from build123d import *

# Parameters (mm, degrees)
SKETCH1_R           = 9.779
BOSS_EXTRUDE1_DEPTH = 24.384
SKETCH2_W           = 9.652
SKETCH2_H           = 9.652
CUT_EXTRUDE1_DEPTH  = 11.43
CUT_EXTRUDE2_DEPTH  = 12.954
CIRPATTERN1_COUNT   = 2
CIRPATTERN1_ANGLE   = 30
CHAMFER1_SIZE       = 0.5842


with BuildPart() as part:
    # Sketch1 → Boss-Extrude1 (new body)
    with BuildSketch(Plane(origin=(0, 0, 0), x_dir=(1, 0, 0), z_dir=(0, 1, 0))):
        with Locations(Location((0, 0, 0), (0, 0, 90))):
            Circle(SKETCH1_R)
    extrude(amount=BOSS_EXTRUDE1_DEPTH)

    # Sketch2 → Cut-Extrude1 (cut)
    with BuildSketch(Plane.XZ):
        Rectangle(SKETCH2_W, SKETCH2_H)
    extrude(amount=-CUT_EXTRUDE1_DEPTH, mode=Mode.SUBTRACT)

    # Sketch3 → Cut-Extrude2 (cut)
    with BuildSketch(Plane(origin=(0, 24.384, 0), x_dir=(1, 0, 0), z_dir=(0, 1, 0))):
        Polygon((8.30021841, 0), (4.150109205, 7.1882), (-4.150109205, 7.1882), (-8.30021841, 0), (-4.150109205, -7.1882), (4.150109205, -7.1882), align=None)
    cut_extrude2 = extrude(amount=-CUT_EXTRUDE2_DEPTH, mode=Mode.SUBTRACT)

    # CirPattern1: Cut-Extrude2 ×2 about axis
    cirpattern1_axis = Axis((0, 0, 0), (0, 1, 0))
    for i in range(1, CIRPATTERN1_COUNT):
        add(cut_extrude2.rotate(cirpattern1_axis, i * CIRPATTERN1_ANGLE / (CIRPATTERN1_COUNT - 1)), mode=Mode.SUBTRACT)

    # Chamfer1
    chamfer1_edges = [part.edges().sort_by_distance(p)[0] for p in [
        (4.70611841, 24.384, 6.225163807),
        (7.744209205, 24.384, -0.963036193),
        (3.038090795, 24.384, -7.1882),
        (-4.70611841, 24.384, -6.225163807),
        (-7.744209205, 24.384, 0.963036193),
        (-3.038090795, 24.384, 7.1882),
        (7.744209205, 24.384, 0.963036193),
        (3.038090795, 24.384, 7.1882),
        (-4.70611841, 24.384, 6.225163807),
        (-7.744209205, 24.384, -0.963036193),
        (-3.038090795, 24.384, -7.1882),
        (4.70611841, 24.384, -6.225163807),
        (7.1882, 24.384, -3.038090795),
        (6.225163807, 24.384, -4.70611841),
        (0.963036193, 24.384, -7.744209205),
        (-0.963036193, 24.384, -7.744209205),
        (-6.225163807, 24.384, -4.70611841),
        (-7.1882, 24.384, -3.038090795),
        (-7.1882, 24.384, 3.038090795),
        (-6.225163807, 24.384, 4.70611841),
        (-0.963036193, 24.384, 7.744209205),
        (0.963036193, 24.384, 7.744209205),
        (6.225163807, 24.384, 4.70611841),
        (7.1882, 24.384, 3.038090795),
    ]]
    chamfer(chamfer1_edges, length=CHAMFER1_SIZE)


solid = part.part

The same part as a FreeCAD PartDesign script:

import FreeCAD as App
import Part
import Sketcher
Q = App.Units.Quantity


def edges_at(feature, points):
    """Names of the edges that pass closest to the given points."""
    edges = feature.Shape.Edges
    near = lambda p: min(range(len(edges)), key=lambda i: edges[i].distToShape(Part.Vertex(*p))[0])
    return sorted({f"Edge{near(p) + 1}" for p in points})

doc = App.newDocument("Part")
body = doc.addObject("PartDesign::Body", "Body")

# Sketch on XZ plane
sketch1 = body.newObject("Sketcher::SketchObject", "Sketch")
sketch1.AttachmentSupport = (doc.getObject("XZ_Plane"), [""])
sketch1.MapMode = "FlatFace"
sketch1.addGeometry(Part.Circle(App.Vector(0, 0, 0), App.Vector(0, 0, 1), 10), False)
sketch1.addConstraint(Sketcher.Constraint("Coincident", 0, 3, -1, 1))
sketch1.addConstraint(Sketcher.Constraint("Diameter", 0, Q("0.77 in")))
pad1 = body.newObject("PartDesign::Pad", "Pad")
pad1.Profile = sketch1
pad1.Length = Q("0.96 in")
pad1.Reversed = True

# Sketch on XZ plane
sketch2 = body.newObject("Sketcher::SketchObject", "Sketch001")
sketch2.AttachmentSupport = (doc.getObject("XZ_Plane"), [""])
sketch2.MapMode = "FlatFace"
sketch2.addGeometry(Part.LineSegment(App.Vector(-5, 5, 0), App.Vector(-5, -5, 0)), False)
sketch2.addGeometry(Part.LineSegment(App.Vector(-5, -5, 0), App.Vector(5, -5, 0)), False)
sketch2.addGeometry(Part.LineSegment(App.Vector(5, -5, 0), App.Vector(5, 5, 0)), False)
sketch2.addGeometry(Part.LineSegment(App.Vector(5, 5, 0), App.Vector(-5, 5, 0)), False)
sketch2.addConstraint(Sketcher.Constraint("Coincident", 0, 2, 1, 1))
sketch2.addConstraint(Sketcher.Constraint("Coincident", 1, 2, 2, 1))
sketch2.addConstraint(Sketcher.Constraint("Coincident", 2, 2, 3, 1))
sketch2.addConstraint(Sketcher.Constraint("Coincident", 3, 2, 0, 1))
sketch2.addConstraint(Sketcher.Constraint("Vertical", 0))
sketch2.addConstraint(Sketcher.Constraint("Horizontal", 1))
sketch2.addConstraint(Sketcher.Constraint("Vertical", 2))
sketch2.addConstraint(Sketcher.Constraint("Horizontal", 3))
sketch2.addConstraint(Sketcher.Constraint("Symmetric", 0, 2, 2, 2, -1, 1))
sketch2.addConstraint(Sketcher.Constraint("Equal", 3, 0))
sketch2.addConstraint(Sketcher.Constraint("DistanceX", 1, 1, 1, 2, Q("0.38 in")))
pocket1 = body.newObject("PartDesign::Pocket", "Pocket")
pocket1.Profile = sketch2
pocket1.Length = Q("0.45 in")

# Sketch on XZ plane
sketch3 = body.newObject("Sketcher::SketchObject", "Sketch002")
sketch3.AttachmentSupport = (doc.getObject("XZ_Plane"), [""])
sketch3.MapMode = "FlatFace"
sketch3.AttachmentOffset = App.Placement(App.Vector(0, 0, -0.96 * 25.4), App.Rotation())
sketch3.addGeometry(Part.LineSegment(App.Vector(8, 0, 0), App.Vector(4, -7, 0)), False)
sketch3.addGeometry(Part.LineSegment(App.Vector(4, -7, 0), App.Vector(-4, -7, 0)), False)
sketch3.addGeometry(Part.LineSegment(App.Vector(-4, -7, 0), App.Vector(-8, 0, 0)), False)
sketch3.addGeometry(Part.LineSegment(App.Vector(-8, 0, 0), App.Vector(-4, 7, 0)), False)
sketch3.addGeometry(Part.LineSegment(App.Vector(-4, 7, 0), App.Vector(4, 7, 0)), False)
sketch3.addGeometry(Part.LineSegment(App.Vector(4, 7, 0), App.Vector(8, 0, 0)), False)
sketch3.addConstraint(Sketcher.Constraint("Coincident", 0, 2, 1, 1))
sketch3.addConstraint(Sketcher.Constraint("Coincident", 1, 2, 2, 1))
sketch3.addConstraint(Sketcher.Constraint("Coincident", 2, 2, 3, 1))
sketch3.addConstraint(Sketcher.Constraint("Coincident", 3, 2, 4, 1))
sketch3.addConstraint(Sketcher.Constraint("Coincident", 4, 2, 5, 1))
sketch3.addConstraint(Sketcher.Constraint("Coincident", 5, 2, 0, 1))
sketch3.addConstraint(Sketcher.Constraint("Horizontal", 1))
sketch3.addConstraint(Sketcher.Constraint("Horizontal", 4))
sketch3.addConstraint(Sketcher.Constraint("Symmetric", 0, 2, 3, 2, -1, 1))
sketch3.addConstraint(Sketcher.Constraint("Symmetric", 2, 2, 5, 2, -1, 1))
sketch3.addConstraint(Sketcher.Constraint("PointOnObject", 2, 2, -1))
sketch3.addConstraint(Sketcher.Constraint("Parallel", 2, 5))
sketch3.addConstraint(Sketcher.Constraint("Vertical", 1, 2, 3, 2))
sketch3.addConstraint(Sketcher.Constraint("Angle", 0, Q("-120 deg")))
sketch3.addConstraint(Sketcher.Constraint("DistanceY", 0, 2, -1, 1, Q("0.283 in")))
sketch3.addConstraint(Sketcher.Constraint("DistanceX", 1, 2, 1, 1, Q("8.300218 mm")))
pocket2 = body.newObject("PartDesign::Pocket", "Pocket001")
pocket2.Profile = sketch3
pocket2.Length = Q("0.51 in")
pocket2.Reversed = True
doc.recompute()

polarpattern = body.newObject("PartDesign::PolarPattern", "PolarPattern")
polarpattern.Originals = [pocket2]
polarpattern.Axis = (doc.getObject("Y_Axis"), [""])
polarpattern.Angle = 30
polarpattern.Occurrences = 2
body.Tip = polarpattern
doc.recompute()

chamfer = body.newObject("PartDesign::Chamfer", "Chamfer")
chamfer.Base = (polarpattern, edges_at(polarpattern, [
    (4.706, 24.384, 6.225),
    (7.744, 24.384, -0.963),
    (3.038, 24.384, -7.188),
    (-4.706, 24.384, -6.225),
    (-7.744, 24.384, 0.963),
    (-3.038, 24.384, 7.188),
    (7.744, 24.384, 0.963),
    (3.038, 24.384, 7.188),
    (-4.706, 24.384, 6.225),
    (-7.744, 24.384, -0.963),
    (-3.038, 24.384, -7.188),
    (4.706, 24.384, -6.225),
    (7.188, 24.384, -3.038),
    (6.225, 24.384, -4.706),
    (0.963, 24.384, -7.744),
    (-0.963, 24.384, -7.744),
    (-6.225, 24.384, -4.706),
    (-7.188, 24.384, -3.038),
    (-7.188, 24.384, 3.038),
    (-6.225, 24.384, 4.706),
    (-0.963, 24.384, 7.744),
    (0.963, 24.384, 7.744),
    (6.225, 24.384, 4.706),
    (7.188, 24.384, 3.038),
]))
chamfer.Size = Q("0.023 in")

doc.recompute()
